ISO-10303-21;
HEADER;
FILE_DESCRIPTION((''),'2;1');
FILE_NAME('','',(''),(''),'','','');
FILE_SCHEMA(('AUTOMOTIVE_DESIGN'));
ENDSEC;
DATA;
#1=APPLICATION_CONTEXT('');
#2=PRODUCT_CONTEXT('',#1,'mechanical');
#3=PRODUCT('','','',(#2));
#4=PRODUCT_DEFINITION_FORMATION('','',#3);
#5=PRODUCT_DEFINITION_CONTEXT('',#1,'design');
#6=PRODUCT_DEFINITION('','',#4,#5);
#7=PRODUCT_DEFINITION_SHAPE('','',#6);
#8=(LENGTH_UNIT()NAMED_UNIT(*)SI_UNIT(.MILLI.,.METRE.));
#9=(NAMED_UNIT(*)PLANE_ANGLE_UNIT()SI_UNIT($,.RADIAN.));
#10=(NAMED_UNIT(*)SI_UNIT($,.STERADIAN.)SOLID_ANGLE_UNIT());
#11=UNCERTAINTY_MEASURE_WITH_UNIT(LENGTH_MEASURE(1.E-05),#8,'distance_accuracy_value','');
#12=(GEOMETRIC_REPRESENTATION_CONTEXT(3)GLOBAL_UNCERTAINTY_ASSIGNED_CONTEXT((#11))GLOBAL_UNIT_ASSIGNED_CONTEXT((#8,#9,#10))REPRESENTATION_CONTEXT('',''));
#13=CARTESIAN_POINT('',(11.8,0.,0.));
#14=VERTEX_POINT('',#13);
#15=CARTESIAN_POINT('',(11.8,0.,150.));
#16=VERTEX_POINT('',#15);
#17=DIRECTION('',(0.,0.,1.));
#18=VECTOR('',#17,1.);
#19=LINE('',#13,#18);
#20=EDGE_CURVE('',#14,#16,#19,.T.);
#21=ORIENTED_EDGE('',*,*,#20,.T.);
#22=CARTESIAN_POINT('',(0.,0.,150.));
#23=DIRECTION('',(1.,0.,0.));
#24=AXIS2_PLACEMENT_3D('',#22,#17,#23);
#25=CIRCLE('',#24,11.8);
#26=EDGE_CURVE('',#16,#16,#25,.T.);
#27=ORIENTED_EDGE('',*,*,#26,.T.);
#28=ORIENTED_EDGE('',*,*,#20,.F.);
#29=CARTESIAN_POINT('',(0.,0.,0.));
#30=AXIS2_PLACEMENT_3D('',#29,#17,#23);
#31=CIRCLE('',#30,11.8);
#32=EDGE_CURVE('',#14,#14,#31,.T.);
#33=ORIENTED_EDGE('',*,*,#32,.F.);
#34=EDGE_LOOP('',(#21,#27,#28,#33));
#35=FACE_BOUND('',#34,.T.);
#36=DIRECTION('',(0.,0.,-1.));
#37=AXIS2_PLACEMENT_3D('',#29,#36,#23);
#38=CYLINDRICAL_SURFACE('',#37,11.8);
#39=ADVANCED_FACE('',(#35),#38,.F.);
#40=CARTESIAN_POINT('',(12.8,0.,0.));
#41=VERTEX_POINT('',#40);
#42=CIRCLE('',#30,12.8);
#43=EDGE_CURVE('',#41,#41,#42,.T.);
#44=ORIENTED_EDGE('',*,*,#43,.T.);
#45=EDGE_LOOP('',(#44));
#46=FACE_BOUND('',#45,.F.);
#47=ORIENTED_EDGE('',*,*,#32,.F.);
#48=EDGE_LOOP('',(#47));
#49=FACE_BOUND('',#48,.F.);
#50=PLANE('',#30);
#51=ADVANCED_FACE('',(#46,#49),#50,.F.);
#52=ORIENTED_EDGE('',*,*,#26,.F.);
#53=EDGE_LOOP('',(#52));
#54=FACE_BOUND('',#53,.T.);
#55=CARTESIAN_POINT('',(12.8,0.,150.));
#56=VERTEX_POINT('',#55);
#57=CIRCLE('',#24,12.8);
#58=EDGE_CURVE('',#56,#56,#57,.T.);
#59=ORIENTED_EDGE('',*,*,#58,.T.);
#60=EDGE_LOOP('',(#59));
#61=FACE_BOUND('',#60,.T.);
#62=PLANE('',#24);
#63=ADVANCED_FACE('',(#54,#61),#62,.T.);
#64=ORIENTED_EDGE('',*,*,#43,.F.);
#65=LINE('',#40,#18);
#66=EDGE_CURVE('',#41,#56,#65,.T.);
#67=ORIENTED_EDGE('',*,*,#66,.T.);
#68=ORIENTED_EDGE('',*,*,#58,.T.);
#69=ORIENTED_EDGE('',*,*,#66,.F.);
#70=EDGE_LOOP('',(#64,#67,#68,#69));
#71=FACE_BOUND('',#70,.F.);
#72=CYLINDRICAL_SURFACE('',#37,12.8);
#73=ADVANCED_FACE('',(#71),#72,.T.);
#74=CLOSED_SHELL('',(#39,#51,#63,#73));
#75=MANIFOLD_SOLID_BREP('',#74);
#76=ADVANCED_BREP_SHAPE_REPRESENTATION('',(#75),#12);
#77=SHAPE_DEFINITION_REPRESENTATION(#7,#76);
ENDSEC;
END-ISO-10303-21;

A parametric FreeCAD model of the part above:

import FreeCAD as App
import Part
import Sketcher
from FreeCAD import Vector

doc = App.newDocument("Part")
body = doc.addObject("PartDesign::Body", "Body")

sketch1 = body.newObject("Sketcher::SketchObject", "Sketch")
sketch1.AttachmentSupport = (doc.getObject("XY_Plane"), [""])
sketch1.MapMode = "FlatFace"
sketch1.addGeometry([
    Part.Circle(Vector(0, 0, 0), Vector(0, 0, 1), 13),
    Part.Circle(Vector(0, 0, 0), Vector(0, 0, 1), 12),
], False)
sketch1.addConstraint([
    Sketcher.Constraint("Coincident", 0, 3, -1, 1),
    Sketcher.Constraint("Coincident", 1, 3, -1, 1),
    Sketcher.Constraint("Diameter", 0, 25.6),
    Sketcher.Constraint("Diameter", 1, 23.6),
])
pad1 = body.newObject("PartDesign::Pad", "Pad")
pad1.Profile = sketch1
pad1.Length = 150

doc.recompute()
